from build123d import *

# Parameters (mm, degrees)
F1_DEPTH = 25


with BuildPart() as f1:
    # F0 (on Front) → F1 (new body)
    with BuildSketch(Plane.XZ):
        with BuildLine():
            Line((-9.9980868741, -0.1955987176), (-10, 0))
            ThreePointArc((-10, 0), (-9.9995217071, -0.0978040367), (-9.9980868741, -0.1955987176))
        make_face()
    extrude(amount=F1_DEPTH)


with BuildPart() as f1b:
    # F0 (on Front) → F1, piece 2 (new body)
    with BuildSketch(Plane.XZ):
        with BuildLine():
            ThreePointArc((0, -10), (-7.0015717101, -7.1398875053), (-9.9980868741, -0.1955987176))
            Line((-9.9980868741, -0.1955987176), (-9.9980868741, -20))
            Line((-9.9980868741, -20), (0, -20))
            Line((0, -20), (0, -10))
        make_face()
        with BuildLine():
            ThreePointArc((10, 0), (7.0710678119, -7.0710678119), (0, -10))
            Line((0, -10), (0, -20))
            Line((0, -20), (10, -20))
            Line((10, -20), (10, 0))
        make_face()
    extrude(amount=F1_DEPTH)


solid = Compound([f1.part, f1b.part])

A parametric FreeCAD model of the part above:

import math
import FreeCAD as App
import Part
import Sketcher
from FreeCAD import Vector
Q = App.Units.Quantity

doc = App.newDocument("Part")
body = doc.addObject("PartDesign::Body", "Body")

# Sketch on XZ plane
sketch1 = body.newObject("Sketcher::SketchObject", "Sketch")
sketch1.AttachmentSupport = (doc.getObject("XZ_Plane"), [""])
sketch1.MapMode = "FlatFace"
sketch1.addGeometry(Part.LineSegment(Vector(-10, -0.2, 0), Vector(-10, 0, 0)), False)
sketch1.addGeometry(Part.ArcOfCircle(Part.Circle(Vector(0, 0, 0), Vector(0, 0, 1), 10), math.radians(180), math.radians(181.12)), False)
sketch1.addConstraint(Sketcher.Constraint("Coincident", 0, 1, 1, 2))
sketch1.addConstraint(Sketcher.Constraint("Coincident", 1, 1, 0, 2))
sketch1.addConstraint(Sketcher.Constraint("Coincident", 1, 3, -1, 1))
sketch1.addConstraint(Sketcher.Constraint("PointOnObject", 1, 1, -1))
sketch1.addConstraint(Sketcher.Constraint("Radius", 1, Q("10 mm")))
sketch1.addConstraint(Sketcher.Constraint("DistanceY", 0, 1, -1, 1, Q("0.195599 mm")))
pad1 = body.newObject("PartDesign::Pad", "Pad")
pad1.Profile = sketch1
pad1.Length = 25
body2 = doc.addObject("PartDesign::Body", "Body001")

# Sketch on XZ plane
sketch2 = body2.newObject("Sketcher::SketchObject", "Sketch001")
sketch2.AttachmentSupport = (doc.getObject("XZ_Plane001"), [""])
sketch2.MapMode = "FlatFace"
sketch2.addGeometry(Part.ArcOfCircle(Part.Circle(Vector(0, 0, 0), Vector(0, 0, 1), 10), math.radians(-179), math.radians(-90)), False)
sketch2.addGeometry(Part.LineSegment(Vector(-10, 0, 0), Vector(-10, -20, 0)), False)
sketch2.addGeometry(Part.LineSegment(Vector(-10, -20, 0), Vector(10, -20, 0)), False)
sketch2.addGeometry(Part.LineSegment(Vector(10, -20, 0), Vector(10, 0, 0)), False)
sketch2.addGeometry(Part.ArcOfCircle(Part.Circle(Vector(0, 0, 0), Vector(0, 0, 1), 10), math.radians(-90), math.radians(0)), False)
sketch2.addConstraint(Sketcher.Constraint("Coincident", 0, 1, 1, 1))
sketch2.addConstraint(Sketcher.Constraint("Coincident", 1, 2, 2, 1))
sketch2.addConstraint(Sketcher.Constraint("Coincident", 2, 2, 3, 1))
sketch2.addConstraint(Sketcher.Constraint("Tangent", 3, 2, 4, 2))
sketch2.addConstraint(Sketcher.Constraint("Tangent", 4, 1, 0, 2))
sketch2.addConstraint(Sketcher.Constraint("Vertical", 1))
sketch2.addConstraint(Sketcher.Constraint("Horizontal", 2))
sketch2.addConstraint(Sketcher.Constraint("Vertical", 3))
sketch2.addConstraint(Sketcher.Constraint("Coincident", 0, 3, -1, 1))
sketch2.addConstraint(Sketcher.Constraint("Equal", 0, 4))
sketch2.addConstraint(Sketcher.Constraint("PointOnObject", 4, 1, -2))
sketch2.addConstraint(Sketcher.Constraint("Radius", 0, Q("10 mm")))
sketch2.addConstraint(Sketcher.Constraint("DistanceY", 3, 1, 3, 2, Q("20 mm")))
sketch2.addConstraint(Sketcher.Constraint("DistanceY", 1, 2, 1, 1, Q("19.804401 mm")))
pad2 = body2.newObject("PartDesign::Pad", "Pad001")
pad2.Profile = sketch2
pad2.Length = 25

doc.recompute()
